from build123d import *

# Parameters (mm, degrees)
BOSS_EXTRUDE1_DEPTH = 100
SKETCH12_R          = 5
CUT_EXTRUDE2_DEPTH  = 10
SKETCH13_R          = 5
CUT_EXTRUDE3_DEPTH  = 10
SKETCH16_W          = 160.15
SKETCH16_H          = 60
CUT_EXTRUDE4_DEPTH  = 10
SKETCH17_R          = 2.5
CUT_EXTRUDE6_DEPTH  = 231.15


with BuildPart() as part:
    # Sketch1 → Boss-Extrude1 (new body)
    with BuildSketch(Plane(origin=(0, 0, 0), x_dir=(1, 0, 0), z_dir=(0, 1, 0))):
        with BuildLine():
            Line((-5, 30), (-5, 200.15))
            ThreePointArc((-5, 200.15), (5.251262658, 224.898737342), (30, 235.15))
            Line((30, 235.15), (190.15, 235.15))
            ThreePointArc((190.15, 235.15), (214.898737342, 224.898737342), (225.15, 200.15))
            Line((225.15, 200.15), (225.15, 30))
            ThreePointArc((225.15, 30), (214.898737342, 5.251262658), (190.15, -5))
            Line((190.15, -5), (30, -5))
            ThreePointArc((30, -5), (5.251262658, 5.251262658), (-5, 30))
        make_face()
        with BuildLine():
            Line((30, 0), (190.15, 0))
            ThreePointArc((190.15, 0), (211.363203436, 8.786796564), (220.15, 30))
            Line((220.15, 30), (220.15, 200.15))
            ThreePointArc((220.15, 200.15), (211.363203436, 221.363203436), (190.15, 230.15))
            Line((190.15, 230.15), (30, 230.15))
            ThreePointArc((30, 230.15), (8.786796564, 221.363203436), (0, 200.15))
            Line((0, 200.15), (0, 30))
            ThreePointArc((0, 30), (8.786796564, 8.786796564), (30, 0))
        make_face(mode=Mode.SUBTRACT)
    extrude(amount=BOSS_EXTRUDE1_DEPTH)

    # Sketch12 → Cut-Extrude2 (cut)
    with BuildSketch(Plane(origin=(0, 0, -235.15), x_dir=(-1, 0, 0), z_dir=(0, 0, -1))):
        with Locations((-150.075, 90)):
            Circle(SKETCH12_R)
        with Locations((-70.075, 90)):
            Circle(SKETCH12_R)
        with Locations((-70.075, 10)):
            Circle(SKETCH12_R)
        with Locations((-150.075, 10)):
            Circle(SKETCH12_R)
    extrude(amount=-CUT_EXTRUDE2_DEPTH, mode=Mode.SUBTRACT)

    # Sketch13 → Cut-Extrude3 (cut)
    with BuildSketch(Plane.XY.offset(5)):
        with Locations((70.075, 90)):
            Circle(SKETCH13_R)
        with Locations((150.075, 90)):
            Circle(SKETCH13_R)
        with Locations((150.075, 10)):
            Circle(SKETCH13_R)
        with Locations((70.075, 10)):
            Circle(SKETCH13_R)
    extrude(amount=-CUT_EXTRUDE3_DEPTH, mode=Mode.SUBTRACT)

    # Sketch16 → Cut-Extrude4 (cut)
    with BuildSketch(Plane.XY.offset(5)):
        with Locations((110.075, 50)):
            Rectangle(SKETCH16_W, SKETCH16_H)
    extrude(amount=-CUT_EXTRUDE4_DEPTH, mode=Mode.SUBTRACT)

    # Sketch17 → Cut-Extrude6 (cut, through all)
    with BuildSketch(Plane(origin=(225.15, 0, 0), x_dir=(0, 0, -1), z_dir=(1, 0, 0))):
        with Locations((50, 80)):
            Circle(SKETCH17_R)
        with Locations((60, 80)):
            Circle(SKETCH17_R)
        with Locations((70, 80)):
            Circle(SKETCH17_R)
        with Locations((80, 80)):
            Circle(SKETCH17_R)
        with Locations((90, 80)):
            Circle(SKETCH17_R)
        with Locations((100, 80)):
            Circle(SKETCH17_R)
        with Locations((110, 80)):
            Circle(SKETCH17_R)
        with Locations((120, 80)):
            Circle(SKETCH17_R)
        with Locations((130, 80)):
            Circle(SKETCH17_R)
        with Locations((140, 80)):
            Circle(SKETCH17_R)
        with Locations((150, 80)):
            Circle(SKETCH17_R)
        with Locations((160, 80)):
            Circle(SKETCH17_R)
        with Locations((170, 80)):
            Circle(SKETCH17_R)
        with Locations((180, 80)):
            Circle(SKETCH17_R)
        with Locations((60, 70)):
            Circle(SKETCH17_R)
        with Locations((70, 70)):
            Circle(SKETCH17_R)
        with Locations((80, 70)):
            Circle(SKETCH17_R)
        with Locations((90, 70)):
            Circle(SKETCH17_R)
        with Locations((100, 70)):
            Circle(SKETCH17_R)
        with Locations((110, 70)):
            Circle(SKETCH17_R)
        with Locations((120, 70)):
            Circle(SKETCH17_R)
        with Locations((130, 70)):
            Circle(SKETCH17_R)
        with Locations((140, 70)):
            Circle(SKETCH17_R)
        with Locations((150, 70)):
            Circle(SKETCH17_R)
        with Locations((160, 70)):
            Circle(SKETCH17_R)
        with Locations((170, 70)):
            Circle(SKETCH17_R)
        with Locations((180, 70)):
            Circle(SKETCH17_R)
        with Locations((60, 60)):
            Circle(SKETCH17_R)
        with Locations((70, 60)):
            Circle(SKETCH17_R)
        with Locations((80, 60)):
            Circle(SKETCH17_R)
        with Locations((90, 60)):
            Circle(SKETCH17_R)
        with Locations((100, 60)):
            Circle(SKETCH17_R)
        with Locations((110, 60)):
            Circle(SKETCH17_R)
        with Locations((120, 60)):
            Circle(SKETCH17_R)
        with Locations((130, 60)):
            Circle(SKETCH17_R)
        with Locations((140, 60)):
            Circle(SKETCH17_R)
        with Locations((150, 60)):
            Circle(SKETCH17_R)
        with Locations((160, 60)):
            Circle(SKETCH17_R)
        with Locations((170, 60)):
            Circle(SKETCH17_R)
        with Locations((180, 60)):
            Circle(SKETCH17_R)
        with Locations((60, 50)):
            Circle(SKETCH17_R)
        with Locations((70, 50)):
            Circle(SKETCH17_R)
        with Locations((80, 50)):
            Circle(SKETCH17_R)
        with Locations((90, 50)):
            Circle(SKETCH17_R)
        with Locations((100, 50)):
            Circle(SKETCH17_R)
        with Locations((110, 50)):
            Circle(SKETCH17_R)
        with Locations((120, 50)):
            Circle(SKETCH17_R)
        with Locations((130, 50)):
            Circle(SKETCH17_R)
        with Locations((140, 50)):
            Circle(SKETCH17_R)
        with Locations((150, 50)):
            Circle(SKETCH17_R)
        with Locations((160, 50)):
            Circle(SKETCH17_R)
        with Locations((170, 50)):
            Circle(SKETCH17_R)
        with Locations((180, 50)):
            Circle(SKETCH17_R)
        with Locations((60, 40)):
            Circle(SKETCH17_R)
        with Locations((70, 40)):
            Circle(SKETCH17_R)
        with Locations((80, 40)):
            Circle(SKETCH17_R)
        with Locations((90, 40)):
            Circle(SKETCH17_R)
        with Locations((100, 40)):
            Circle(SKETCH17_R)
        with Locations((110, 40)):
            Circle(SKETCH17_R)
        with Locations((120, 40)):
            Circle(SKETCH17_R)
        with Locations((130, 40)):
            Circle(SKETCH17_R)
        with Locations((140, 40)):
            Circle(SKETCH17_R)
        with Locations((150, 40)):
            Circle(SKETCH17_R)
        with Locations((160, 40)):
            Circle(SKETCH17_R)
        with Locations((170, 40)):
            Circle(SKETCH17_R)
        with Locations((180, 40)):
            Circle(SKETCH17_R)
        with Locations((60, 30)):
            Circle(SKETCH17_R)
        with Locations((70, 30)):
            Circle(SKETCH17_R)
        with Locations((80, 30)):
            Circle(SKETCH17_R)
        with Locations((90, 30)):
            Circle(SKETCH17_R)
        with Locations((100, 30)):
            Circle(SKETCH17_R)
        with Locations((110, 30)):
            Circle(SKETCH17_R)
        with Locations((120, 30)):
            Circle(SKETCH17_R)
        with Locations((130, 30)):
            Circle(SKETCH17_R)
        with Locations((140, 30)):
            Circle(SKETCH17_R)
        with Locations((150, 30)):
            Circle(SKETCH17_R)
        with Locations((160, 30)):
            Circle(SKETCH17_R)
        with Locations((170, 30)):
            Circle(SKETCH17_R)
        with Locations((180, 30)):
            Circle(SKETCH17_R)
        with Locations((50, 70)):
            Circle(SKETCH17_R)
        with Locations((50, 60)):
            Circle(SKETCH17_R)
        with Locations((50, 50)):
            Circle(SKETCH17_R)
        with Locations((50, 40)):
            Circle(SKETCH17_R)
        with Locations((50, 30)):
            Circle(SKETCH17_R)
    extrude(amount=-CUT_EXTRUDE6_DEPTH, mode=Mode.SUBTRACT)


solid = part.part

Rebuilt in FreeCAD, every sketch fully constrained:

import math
import FreeCAD as App
import Part
import Sketcher


def add_polygon(sketch, points):
    """Adds a closed chain of lines whose ends are joined by coincident constraints."""
    first, n = sketch.GeometryCount, len(points)
    for a, b in zip(points, points[1:] + points[:1]):
        sketch.addGeometry(Part.LineSegment(App.Vector(*a, 0), App.Vector(*b, 0)), False)
    for i in range(n):
        sketch.addConstraint(Sketcher.Constraint("Coincident", first + i, 2, first + (i + 1) % n, 1))

doc = App.newDocument("Part")
params = doc.addObject("Spreadsheet::Sheet", "Params")
for row, (alias, value) in enumerate([
    ("sketch1_radius", "35 mm"),
    ("sketch1_radius2", "30 mm"),
    ("sketch1_width", "160.15 mm"),
    ("sketch1_height", "170.15 mm"),
    ("pad1_length", "100 mm"),
    ("sketch2_diameter", "10 mm"),
    ("pocket1_length", "10 mm"),
    ("sketch3_diameter", "10 mm"),
    ("pocket2_length", "10 mm"),
    ("sketch4_height", "60 mm"),
    ("sketch4_width", "160.15 mm"),
    ("pocket3_length", "10 mm"),
    ("sketch5_diameter", "5 mm"),
], start=1):
    params.set(f"A{row}", alias)
    params.set(f"B{row}", "=" + value)
    params.setAlias(f"B{row}", alias)

body = doc.addObject("PartDesign::Body", "Body")

# Sketch on XZ plane
sketch1 = doc.addObject("Sketcher::SketchObject", "Sketch")
body.addObject(sketch1)
sketch1.AttachmentSupport = (doc.XZ_Plane, [""])
sketch1.MapMode = "FlatFace"
sketch1.addGeometry([
    Part.LineSegment(App.Vector(-5, -200.15, 0), App.Vector(-5, -30, 0)),  # 0
    Part.ArcOfCircle(Part.Circle(App.Vector(30, -30, 0), App.Vector(0, 0, 1), 35), math.radians(90), math.radians(180)),  # 1
    Part.LineSegment(App.Vector(30, 5, 0), App.Vector(190.15, 5, 0)),  # 2
    Part.ArcOfCircle(Part.Circle(App.Vector(190.15, -30, 0), App.Vector(0, 0, 1), 35), math.radians(0), math.radians(90)),  # 3
    Part.LineSegment(App.Vector(225.15, -30, 0), App.Vector(225.15, -200.15, 0)),  # 4
    Part.ArcOfCircle(Part.Circle(App.Vector(190.15, -200.15, 0), App.Vector(0, 0, 1), 35), math.radians(-90), math.radians(0)),  # 5
    Part.LineSegment(App.Vector(190.15, -235.15, 0), App.Vector(30, -235.15, 0)),  # 6
    Part.ArcOfCircle(Part.Circle(App.Vector(30, -200.15, 0), App.Vector(0, 0, 1), 35), math.radians(180), math.radians(270)),  # 7
    Part.ArcOfCircle(Part.Circle(App.Vector(30, -30, 0), App.Vector(0, 0, 1), 30), math.radians(90), math.radians(180)),  # 8
    Part.LineSegment(App.Vector(0, -30, 0), App.Vector(0, -200.15, 0)),  # 9
    Part.ArcOfCircle(Part.Circle(App.Vector(30, -200.15, 0), App.Vector(0, 0, 1), 30), math.radians(180), math.radians(270)),  # 10
    Part.LineSegment(App.Vector(30, -230.15, 0), App.Vector(190.15, -230.15, 0)),  # 11
    Part.ArcOfCircle(Part.Circle(App.Vector(190.15, -200.15, 0), App.Vector(0, 0, 1), 30), math.radians(-90), math.radians(0)),  # 12
    Part.LineSegment(App.Vector(220.15, -200.15, 0), App.Vector(220.15, -30, 0)),  # 13
    Part.ArcOfCircle(Part.Circle(App.Vector(190.15, -30, 0), App.Vector(0, 0, 1), 30), math.radians(0), math.radians(90)),  # 14
    Part.LineSegment(App.Vector(190.15, 0, 0), App.Vector(30, 0, 0)),  # 15
], False)
sketch1.addConstraint([
    Sketcher.Constraint("Tangent", 0, 2, 1, 2),
    Sketcher.Constraint("Tangent", 1, 1, 2, 1),
    Sketcher.Constraint("Tangent", 2, 2, 3, 2),
    Sketcher.Constraint("Tangent", 3, 1, 4, 1),
    Sketcher.Constraint("Tangent", 4, 2, 5, 2),
    Sketcher.Constraint("Tangent", 5, 1, 6, 1),
    Sketcher.Constraint("Tangent", 6, 2, 7, 2),
    Sketcher.Constraint("Tangent", 7, 1, 0, 1),
    Sketcher.Constraint("Tangent", 8, 2, 9, 1),
    Sketcher.Constraint("Tangent", 9, 2, 10, 1),
    Sketcher.Constraint("Tangent", 10, 2, 11, 1),
    Sketcher.Constraint("Tangent", 11, 2, 12, 1),
    Sketcher.Constraint("Tangent", 12, 2, 13, 1),
    Sketcher.Constraint("Tangent", 13, 2, 14, 1),
    Sketcher.Constraint("Tangent", 14, 2, 15, 1),
    Sketcher.Constraint("Tangent", 15, 2, 8, 1),
    Sketcher.Constraint("Vertical", 0),
    Sketcher.Constraint("Horizontal", 2),
    Sketcher.Constraint("Vertical", 4),
    Sketcher.Constraint("Horizontal", 6),
    Sketcher.Constraint("Vertical", 9),
    Sketcher.Constraint("Horizontal", 11),
    Sketcher.Constraint("Vertical", 13),
    Sketcher.Constraint("Horizontal", 15),
    Sketcher.Constraint("Coincident", 8, 3, 1, 3),
    Sketcher.Constraint("Coincident", 10, 3, 7, 3),
    Sketcher.Constraint("Coincident", 12, 3, 5, 3),
    Sketcher.Constraint("Equal", 1, 3),
    Sketcher.Constraint("Equal", 3, 5),
    Sketcher.Constraint("Equal", 5, 7),
    Sketcher.Constraint("Equal", 12, 14),
    Sketcher.Constraint("PointOnObject", 8, 2, -2),
    Sketcher.Constraint("PointOnObject", 14, 2, -1),
    Sketcher.Constraint("Radius", 1, 35.0),
    Sketcher.Constraint("Radius", 8, 30.0),
    Sketcher.Constraint("DistanceX", 2, 1, 2, 2, 160.15),
    Sketcher.Constraint("DistanceY", 0, 1, 0, 2, 170.15),
])
sketch1.setExpression("Constraints[33]", "Params.sketch1_radius")
sketch1.setExpression("Constraints[34]", "Params.sketch1_radius2")
sketch1.setExpression("Constraints[35]", "Params.sketch1_width")
sketch1.setExpression("Constraints[36]", "Params.sketch1_height")
pad1 = doc.addObject("PartDesign::Pad", "Pad")
body.addObject(pad1)
pad1.Profile = sketch1
pad1.setExpression("Length", "Params.pad1_length")
pad1.Reversed = True

# Sketch on XY plane
sketch2 = doc.addObject("Sketcher::SketchObject", "Sketch001")
body.addObject(sketch2)
sketch2.AttachmentSupport = (doc.XY_Plane, [""])
sketch2.MapMode = "FlatFace"
sketch2.AttachmentOffset = App.Placement(App.Vector(0, 0, -235.15), App.Rotation())
sketch2.addGeometry([
    Part.Circle(App.Vector(150.075, 90, 0), App.Vector(0, 0, 1), 5),
    Part.Circle(App.Vector(70.075, 90, 0), App.Vector(0, 0, 1), 5),
    Part.Circle(App.Vector(70.075, 10, 0), App.Vector(0, 0, 1), 5),
    Part.Circle(App.Vector(150.075, 10, 0), App.Vector(0, 0, 1), 5),
], False)
sketch2.addConstraint([
    Sketcher.Constraint("Equal", 0, 1),
    Sketcher.Constraint("Equal", 1, 2),
    Sketcher.Constraint("Equal", 2, 3),
    Sketcher.Constraint("Horizontal", 0, 3, 1, 3),
    Sketcher.Constraint("Horizontal", 2, 3, 3, 3),
    Sketcher.Constraint("Vertical", 1, 3, 2, 3),
    Sketcher.Constraint("Vertical", 0, 3, 3, 3),
    Sketcher.Constraint("Diameter", 0, 10.0),
    Sketcher.Constraint("DistanceY", -1, 1, 0, 3, 90.0),
    Sketcher.Constraint("DistanceY", -1, 1, 2, 3, 10.0),
    Sketcher.Constraint("DistanceX", 1, 3, 0, 3, 80.0),
    Sketcher.Constraint("DistanceX", -1, 1, 0, 3, 150.075),
])
sketch2.setExpression("Constraints[7]", "Params.sketch2_diameter")
pocket1 = doc.addObject("PartDesign::Pocket", "Pocket")
body.addObject(pocket1)
pocket1.Profile = sketch2
pocket1.setExpression("Length", "Params.pocket1_length")
pocket1.Reversed = True

# Sketch on XY plane
sketch3 = doc.addObject("Sketcher::SketchObject", "Sketch002")
body.addObject(sketch3)
sketch3.AttachmentSupport = (doc.XY_Plane, [""])
sketch3.MapMode = "FlatFace"
sketch3.AttachmentOffset = App.Placement(App.Vector(0, 0, 5), App.Rotation())
sketch3.addGeometry([
    Part.Circle(App.Vector(70.075, 90, 0), App.Vector(0, 0, 1), 5),
    Part.Circle(App.Vector(150.075, 90, 0), App.Vector(0, 0, 1), 5),
    Part.Circle(App.Vector(150.075, 10, 0), App.Vector(0, 0, 1), 5),
    Part.Circle(App.Vector(70.075, 10, 0), App.Vector(0, 0, 1), 5),
], False)
sketch3.addConstraint([
    Sketcher.Constraint("Equal", 0, 1),
    Sketcher.Constraint("Equal", 1, 2),
    Sketcher.Constraint("Equal", 2, 3),
    Sketcher.Constraint("Horizontal", 0, 3, 1, 3),
    Sketcher.Constraint("Horizontal", 2, 3, 3, 3),
    Sketcher.Constraint("Vertical", 1, 3, 2, 3),
    Sketcher.Constraint("Vertical", 0, 3, 3, 3),
    Sketcher.Constraint("Diameter", 0, 10.0),
    Sketcher.Constraint("DistanceY", -1, 1, 0, 3, 90.0),
    Sketcher.Constraint("DistanceY", -1, 1, 2, 3, 10.0),
    Sketcher.Constraint("DistanceX", 0, 3, 1, 3, 80.0),
    Sketcher.Constraint("DistanceX", -1, 1, 0, 3, 70.075),
])
sketch3.setExpression("Constraints[7]", "Params.sketch3_diameter")
pocket2 = doc.addObject("PartDesign::Pocket", "Pocket001")
body.addObject(pocket2)
pocket2.Profile = sketch3
pocket2.setExpression("Length", "Params.pocket2_length")

# Sketch on XY plane
sketch4 = doc.addObject("Sketcher::SketchObject", "Sketch003")
body.addObject(sketch4)
sketch4.AttachmentSupport = (doc.XY_Plane, [""])
sketch4.MapMode = "FlatFace"
sketch4.AttachmentOffset = App.Placement(App.Vector(0, 0, 5), App.Rotation())
add_polygon(sketch4, [(30, 80), (30, 20), (190.15, 20), (190.15, 80)])  # lines 0-3
sketch4.addConstraint([
    Sketcher.Constraint("Vertical", 0),
    Sketcher.Constraint("Horizontal", 1),
    Sketcher.Constraint("Vertical", 2),
    Sketcher.Constraint("Horizontal", 3),
    Sketcher.Constraint("DistanceY", 0, 2, 0, 1, 60.0),
    Sketcher.Constraint("DistanceX", -1, 1, 0, 2, 30.0),
    Sketcher.Constraint("DistanceY", -1, 1, 0, 2, 20.0),
    Sketcher.Constraint("DistanceX", 1, 1, 1, 2, 160.15),
])
sketch4.setExpression("Constraints[8]", "Params.sketch4_height")
sketch4.setExpression("Constraints[11]", "Params.sketch4_width")
pocket3 = doc.addObject("PartDesign::Pocket", "Pocket002")
body.addObject(pocket3)
pocket3.Profile = sketch4
pocket3.setExpression("Length", "Params.pocket3_length")

# Sketch on YZ plane
sketch5 = doc.addObject("Sketcher::SketchObject", "Sketch004")
body.addObject(sketch5)
sketch5.AttachmentSupport = (doc.YZ_Plane, [""])
sketch5.MapMode = "FlatFace"
sketch5.AttachmentOffset = App.Placement(App.Vector(0, 0, 225.15), App.Rotation())
sketch5.addGeometry([
    Part.Circle(App.Vector(80, -50, 0), App.Vector(0, 0, 1), 2.5),  # 0
    Part.Circle(App.Vector(80, -60, 0), App.Vector(0, 0, 1), 2.5),  # 1
    Part.Circle(App.Vector(80, -70, 0), App.Vector(0, 0, 1), 2.5),  # 2
    Part.Circle(App.Vector(80, -80, 0), App.Vector(0, 0, 1), 2.5),  # 3
    Part.Circle(App.Vector(80, -90, 0), App.Vector(0, 0, 1), 2.5),  # 4
    Part.Circle(App.Vector(80, -100, 0), App.Vector(0, 0, 1), 2.5),  # 5
    Part.Circle(App.Vector(80, -110, 0), App.Vector(0, 0, 1), 2.5),  # 6
    Part.Circle(App.Vector(80, -120, 0), App.Vector(0, 0, 1), 2.5),  # 7
    Part.Circle(App.Vector(80, -130, 0), App.Vector(0, 0, 1), 2.5),  # 8
    Part.Circle(App.Vector(80, -140, 0), App.Vector(0, 0, 1), 2.5),  # 9
    Part.Circle(App.Vector(80, -150, 0), App.Vector(0, 0, 1), 2.5),  # 10
    Part.Circle(App.Vector(80, -160, 0), App.Vector(0, 0, 1), 2.5),  # 11
    Part.Circle(App.Vector(80, -170, 0), App.Vector(0, 0, 1), 2.5),  # 12
    Part.Circle(App.Vector(80, -180, 0), App.Vector(0, 0, 1), 2.5),  # 13
    Part.Circle(App.Vector(70, -60, 0), App.Vector(0, 0, 1), 2.5),  # 14
    Part.Circle(App.Vector(70, -70, 0), App.Vector(0, 0, 1), 2.5),  # 15
    Part.Circle(App.Vector(70, -80, 0), App.Vector(0, 0, 1), 2.5),  # 16
    Part.Circle(App.Vector(70, -90, 0), App.Vector(0, 0, 1), 2.5),  # 17
    Part.Circle(App.Vector(70, -100, 0), App.Vector(0, 0, 1), 2.5),  # 18
    Part.Circle(App.Vector(70, -110, 0), App.Vector(0, 0, 1), 2.5),  # 19
    Part.Circle(App.Vector(70, -120, 0), App.Vector(0, 0, 1), 2.5),  # 20
    Part.Circle(App.Vector(70, -130, 0), App.Vector(0, 0, 1), 2.5),  # 21
    Part.Circle(App.Vector(70, -140, 0), App.Vector(0, 0, 1), 2.5),  # 22
    Part.Circle(App.Vector(70, -150, 0), App.Vector(0, 0, 1), 2.5),  # 23
    Part.Circle(App.Vector(70, -160, 0), App.Vector(0, 0, 1), 2.5),  # 24
    Part.Circle(App.Vector(70, -170, 0), App.Vector(0, 0, 1), 2.5),  # 25
    Part.Circle(App.Vector(70, -180, 0), App.Vector(0, 0, 1), 2.5),  # 26
    Part.Circle(App.Vector(60, -60, 0), App.Vector(0, 0, 1), 2.5),  # 27
    Part.Circle(App.Vector(60, -70, 0), App.Vector(0, 0, 1), 2.5),  # 28
    Part.Circle(App.Vector(60, -80, 0), App.Vector(0, 0, 1), 2.5),  # 29
    Part.Circle(App.Vector(60, -90, 0), App.Vector(0, 0, 1), 2.5),  # 30
    Part.Circle(App.Vector(60, -100, 0), App.Vector(0, 0, 1), 2.5),  # 31
    Part.Circle(App.Vector(60, -110, 0), App.Vector(0, 0, 1), 2.5),  # 32
    Part.Circle(App.Vector(60, -120, 0), App.Vector(0, 0, 1), 2.5),  # 33
    Part.Circle(App.Vector(60, -130, 0), App.Vector(0, 0, 1), 2.5),  # 34
    Part.Circle(App.Vector(60, -140, 0), App.Vector(0, 0, 1), 2.5),  # 35
    Part.Circle(App.Vector(60, -150, 0), App.Vector(0, 0, 1), 2.5),  # 36
    Part.Circle(App.Vector(60, -160, 0), App.Vector(0, 0, 1), 2.5),  # 37
    Part.Circle(App.Vector(60, -170, 0), App.Vector(0, 0, 1), 2.5),  # 38
    Part.Circle(App.Vector(60, -180, 0), App.Vector(0, 0, 1), 2.5),  # 39
    Part.Circle(App.Vector(50, -60, 0), App.Vector(0, 0, 1), 2.5),  # 40
    Part.Circle(App.Vector(50, -70, 0), App.Vector(0, 0, 1), 2.5),  # 41
    Part.Circle(App.Vector(50, -80, 0), App.Vector(0, 0, 1), 2.5),  # 42
    Part.Circle(App.Vector(50, -90, 0), App.Vector(0, 0, 1), 2.5),  # 43
    Part.Circle(App.Vector(50, -100, 0), App.Vector(0, 0, 1), 2.5),  # 44
    Part.Circle(App.Vector(50, -110, 0), App.Vector(0, 0, 1), 2.5),  # 45
    Part.Circle(App.Vector(50, -120, 0), App.Vector(0, 0, 1), 2.5),  # 46
    Part.Circle(App.Vector(50, -130, 0), App.Vector(0, 0, 1), 2.5),  # 47
    Part.Circle(App.Vector(50, -140, 0), App.Vector(0, 0, 1), 2.5),  # 48
    Part.Circle(App.Vector(50, -150, 0), App.Vector(0, 0, 1), 2.5),  # 49
    Part.Circle(App.Vector(50, -160, 0), App.Vector(0, 0, 1), 2.5),  # 50
    Part.Circle(App.Vector(50, -170, 0), App.Vector(0, 0, 1), 2.5),  # 51
    Part.Circle(App.Vector(50, -180, 0), App.Vector(0, 0, 1), 2.5),  # 52
    Part.Circle(App.Vector(40, -60, 0), App.Vector(0, 0, 1), 2.5),  # 53
    Part.Circle(App.Vector(40, -70, 0), App.Vector(0, 0, 1), 2.5),  # 54
    Part.Circle(App.Vector(40, -80, 0), App.Vector(0, 0, 1), 2.5),  # 55
    Part.Circle(App.Vector(40, -90, 0), App.Vector(0, 0, 1), 2.5),  # 56
    Part.Circle(App.Vector(40, -100, 0), App.Vector(0, 0, 1), 2.5),  # 57
    Part.Circle(App.Vector(40, -110, 0), App.Vector(0, 0, 1), 2.5),  # 58
    Part.Circle(App.Vector(40, -120, 0), App.Vector(0, 0, 1), 2.5),  # 59
    Part.Circle(App.Vector(40, -130, 0), App.Vector(0, 0, 1), 2.5),  # 60
    Part.Circle(App.Vector(40, -140, 0), App.Vector(0, 0, 1), 2.5),  # 61
    Part.Circle(App.Vector(40, -150, 0), App.Vector(0, 0, 1), 2.5),  # 62
    Part.Circle(App.Vector(40, -160, 0), App.Vector(0, 0, 1), 2.5),  # 63
    Part.Circle(App.Vector(40, -170, 0), App.Vector(0, 0, 1), 2.5),  # 64
    Part.Circle(App.Vector(40, -180, 0), App.Vector(0, 0, 1), 2.5),  # 65
    Part.Circle(App.Vector(30, -60, 0), App.Vector(0, 0, 1), 2.5),  # 66
    Part.Circle(App.Vector(30, -70, 0), App.Vector(0, 0, 1), 2.5),  # 67
    Part.Circle(App.Vector(30, -80, 0), App.Vector(0, 0, 1), 2.5),  # 68
    Part.Circle(App.Vector(30, -90, 0), App.Vector(0, 0, 1), 2.5),  # 69
    Part.Circle(App.Vector(30, -100, 0), App.Vector(0, 0, 1), 2.5),  # 70
    Part.Circle(App.Vector(30, -110, 0), App.Vector(0, 0, 1), 2.5),  # 71
    Part.Circle(App.Vector(30, -120, 0), App.Vector(0, 0, 1), 2.5),  # 72
    Part.Circle(App.Vector(30, -130, 0), App.Vector(0, 0, 1), 2.5),  # 73
    Part.Circle(App.Vector(30, -140, 0), App.Vector(0, 0, 1), 2.5),  # 74
    Part.Circle(App.Vector(30, -150, 0), App.Vector(0, 0, 1), 2.5),  # 75
    Part.Circle(App.Vector(30, -160, 0), App.Vector(0, 0, 1), 2.5),  # 76
    Part.Circle(App.Vector(30, -170, 0), App.Vector(0, 0, 1), 2.5),  # 77
    Part.Circle(App.Vector(30, -180, 0), App.Vector(0, 0, 1), 2.5),  # 78
    Part.Circle(App.Vector(70, -50, 0), App.Vector(0, 0, 1), 2.5),  # 79
    Part.Circle(App.Vector(60, -50, 0), App.Vector(0, 0, 1), 2.5),  # 80
    Part.Circle(App.Vector(50, -50, 0), App.Vector(0, 0, 1), 2.5),  # 81
    Part.Circle(App.Vector(40, -50, 0), App.Vector(0, 0, 1), 2.5),  # 82
    Part.Circle(App.Vector(30, -50, 0), App.Vector(0, 0, 1), 2.5),  # 83
], False)
sketch5.addConstraint([
    Sketcher.Constraint("Equal", 0, 1),
    Sketcher.Constraint("Equal", 1, 2),
    Sketcher.Constraint("Equal", 2, 3),
    Sketcher.Constraint("Equal", 3, 4),
    Sketcher.Constraint("Equal", 4, 5),
    Sketcher.Constraint("Equal", 5, 6),
    Sketcher.Constraint("Equal", 6, 7),
    Sketcher.Constraint("Equal", 7, 8),
    Sketcher.Constraint("Equal", 8, 9),
    Sketcher.Constraint("Equal", 9, 10),
    Sketcher.Constraint("Equal", 10, 11),
    Sketcher.Constraint("Equal", 11, 12),
    Sketcher.Constraint("Equal", 12, 13),
    Sketcher.Constraint("Equal", 13, 14),
    Sketcher.Constraint("Equal", 14, 15),
    Sketcher.Constraint("Equal", 15, 16),
    Sketcher.Constraint("Equal", 16, 17),
    Sketcher.Constraint("Equal", 17, 18),
    Sketcher.Constraint("Equal", 18, 19),
    Sketcher.Constraint("Equal", 19, 20),
    Sketcher.Constraint("Equal", 20, 21),
    Sketcher.Constraint("Equal", 21, 22),
    Sketcher.Constraint("Equal", 22, 23),
    Sketcher.Constraint("Equal", 23, 24),
    Sketcher.Constraint("Equal", 24, 25),
    Sketcher.Constraint("Equal", 25, 26),
    Sketcher.Constraint("Equal", 26, 27),
    Sketcher.Constraint("Equal", 27, 28),
    Sketcher.Constraint("Equal", 28, 29),
    Sketcher.Constraint("Equal", 29, 30),
    Sketcher.Constraint("Equal", 30, 31),
    Sketcher.Constraint("Equal", 31, 32),
    Sketcher.Constraint("Equal", 32, 33),
    Sketcher.Constraint("Equal", 33, 34),
    Sketcher.Constraint("Equal", 34, 35),
    Sketcher.Constraint("Equal", 35, 36),
    Sketcher.Constraint("Equal", 36, 37),
    Sketcher.Constraint("Equal", 37, 38),
    Sketcher.Constraint("Equal", 38, 39),
    Sketcher.Constraint("Equal", 39, 40),
    Sketcher.Constraint("Equal", 40, 41),
    Sketcher.Constraint("Equal", 41, 42),
    Sketcher.Constraint("Equal", 42, 43),
    Sketcher.Constraint("Equal", 43, 44),
    Sketcher.Constraint("Equal", 44, 45),
    Sketcher.Constraint("Equal", 45, 46),
    Sketcher.Constraint("Equal", 46, 47),
    Sketcher.Constraint("Equal", 47, 48),
    Sketcher.Constraint("Equal", 48, 49),
    Sketcher.Constraint("Equal", 49, 50),
    Sketcher.Constraint("Equal", 50, 51),
    Sketcher.Constraint("Equal", 51, 52),
    Sketcher.Constraint("Equal", 52, 53),
    Sketcher.Constraint("Equal", 53, 54),
    Sketcher.Constraint("Equal", 54, 55),
    Sketcher.Constraint("Equal", 55, 56),
    Sketcher.Constraint("Equal", 56, 57),
    Sketcher.Constraint("Equal", 57, 58),
    Sketcher.Constraint("Equal", 58, 59),
    Sketcher.Constraint("Equal", 59, 60),
    Sketcher.Constraint("Equal", 60, 61),
    Sketcher.Constraint("Equal", 61, 62),
    Sketcher.Constraint("Equal", 62, 63),
    Sketcher.Constraint("Equal", 63, 64),
    Sketcher.Constraint("Equal", 64, 65),
    Sketcher.Constraint("Equal", 65, 66),
    Sketcher.Constraint("Equal", 66, 67),
    Sketcher.Constraint("Equal", 67, 68),
    Sketcher.Constraint("Equal", 68, 69),
    Sketcher.Constraint("Equal", 69, 70),
    Sketcher.Constraint("Equal", 70, 71),
    Sketcher.Constraint("Equal", 71, 72),
    Sketcher.Constraint("Equal", 72, 73),
    Sketcher.Constraint("Equal", 73, 74),
    Sketcher.Constraint("Equal", 74, 75),
    Sketcher.Constraint("Equal", 75, 76),
    Sketcher.Constraint("Equal", 76, 77),
    Sketcher.Constraint("Equal", 77, 78),
    Sketcher.Constraint("Equal", 78, 79),
    Sketcher.Constraint("Equal", 79, 80),
    Sketcher.Constraint("Equal", 80, 81),
    Sketcher.Constraint("Equal", 81, 82),
    Sketcher.Constraint("Equal", 82, 83),
    Sketcher.Constraint("Horizontal", 1, 3, 14, 3),
    Sketcher.Constraint("Horizontal", 2, 3, 15, 3),
    Sketcher.Constraint("Horizontal", 3, 3, 16, 3),
    Sketcher.Constraint("Horizontal", 4, 3, 17, 3),
    Sketcher.Constraint("Horizontal", 5, 3, 18, 3),
    Sketcher.Constraint("Horizontal", 6, 3, 19, 3),
    Sketcher.Constraint("Horizontal", 7, 3, 20, 3),
    Sketcher.Constraint("Horizontal", 8, 3, 21, 3),
    Sketcher.Constraint("Horizontal", 9, 3, 22, 3),
    Sketcher.Constraint("Horizontal", 10, 3, 23, 3),
    Sketcher.Constraint("Horizontal", 11, 3, 24, 3),
    Sketcher.Constraint("Horizontal", 12, 3, 25, 3),
    Sketcher.Constraint("Horizontal", 13, 3, 26, 3),
    Sketcher.Constraint("Horizontal", 14, 3, 27, 3),
    Sketcher.Constraint("Horizontal", 15, 3, 28, 3),
    Sketcher.Constraint("Horizontal", 16, 3, 29, 3),
    Sketcher.Constraint("Horizontal", 17, 3, 30, 3),
    Sketcher.Constraint("Horizontal", 18, 3, 31, 3),
    Sketcher.Constraint("Horizontal", 19, 3, 32, 3),
    Sketcher.Constraint("Horizontal", 20, 3, 33, 3),
    Sketcher.Constraint("Horizontal", 21, 3, 34, 3),
    Sketcher.Constraint("Horizontal", 22, 3, 35, 3),
    Sketcher.Constraint("Horizontal", 23, 3, 36, 3),
    Sketcher.Constraint("Horizontal", 24, 3, 37, 3),
    Sketcher.Constraint("Horizontal", 25, 3, 38, 3),
    Sketcher.Constraint("Horizontal", 26, 3, 39, 3),
    Sketcher.Constraint("Horizontal", 27, 3, 40, 3),
    Sketcher.Constraint("Horizontal", 28, 3, 41, 3),
    Sketcher.Constraint("Horizontal", 29, 3, 42, 3),
    Sketcher.Constraint("Horizontal", 30, 3, 43, 3),
    Sketcher.Constraint("Horizontal", 31, 3, 44, 3),
    Sketcher.Constraint("Horizontal", 32, 3, 45, 3),
    Sketcher.Constraint("Horizontal", 33, 3, 46, 3),
    Sketcher.Constraint("Horizontal", 34, 3, 47, 3),
    Sketcher.Constraint("Horizontal", 35, 3, 48, 3),
    Sketcher.Constraint("Horizontal", 36, 3, 49, 3),
    Sketcher.Constraint("Horizontal", 37, 3, 50, 3),
    Sketcher.Constraint("Horizontal", 38, 3, 51, 3),
    Sketcher.Constraint("Horizontal", 39, 3, 52, 3),
    Sketcher.Constraint("Horizontal", 40, 3, 53, 3),
    Sketcher.Constraint("Horizontal", 41, 3, 54, 3),
    Sketcher.Constraint("Horizontal", 42, 3, 55, 3),
    Sketcher.Constraint("Horizontal", 43, 3, 56, 3),
    Sketcher.Constraint("Horizontal", 44, 3, 57, 3),
    Sketcher.Constraint("Horizontal", 45, 3, 58, 3),
    Sketcher.Constraint("Horizontal", 46, 3, 59, 3),
    Sketcher.Constraint("Horizontal", 47, 3, 60, 3),
    Sketcher.Constraint("Horizontal", 48, 3, 61, 3),
    Sketcher.Constraint("Horizontal", 49, 3, 62, 3),
    Sketcher.Constraint("Horizontal", 50, 3, 63, 3),
    Sketcher.Constraint("Horizontal", 51, 3, 64, 3),
    Sketcher.Constraint("Horizontal", 52, 3, 65, 3),
    Sketcher.Constraint("Horizontal", 53, 3, 66, 3),
    Sketcher.Constraint("Horizontal", 54, 3, 67, 3),
    Sketcher.Constraint("Horizontal", 55, 3, 68, 3),
    Sketcher.Constraint("Horizontal", 56, 3, 69, 3),
    Sketcher.Constraint("Horizontal", 57, 3, 70, 3),
    Sketcher.Constraint("Horizontal", 58, 3, 71, 3),
    Sketcher.Constraint("Horizontal", 59, 3, 72, 3),
    Sketcher.Constraint("Horizontal", 60, 3, 73, 3),
    Sketcher.Constraint("Horizontal", 61, 3, 74, 3),
    Sketcher.Constraint("Horizontal", 62, 3, 75, 3),
    Sketcher.Constraint("Horizontal", 63, 3, 76, 3),
    Sketcher.Constraint("Horizontal", 64, 3, 77, 3),
    Sketcher.Constraint("Horizontal", 65, 3, 78, 3),
    Sketcher.Constraint("Horizontal", 0, 3, 79, 3),
    Sketcher.Constraint("Horizontal", 79, 3, 80, 3),
    Sketcher.Constraint("Horizontal", 80, 3, 81, 3),
    Sketcher.Constraint("Horizontal", 81, 3, 82, 3),
    Sketcher.Constraint("Horizontal", 82, 3, 83, 3),
    Sketcher.Constraint("Vertical", 0, 3, 1, 3),
    Sketcher.Constraint("Vertical", 1, 3, 2, 3),
    Sketcher.Constraint("Vertical", 2, 3, 3, 3),
    Sketcher.Constraint("Vertical", 3, 3, 4, 3),
    Sketcher.Constraint("Vertical", 4, 3, 5, 3),
    Sketcher.Constraint("Vertical", 5, 3, 6, 3),
    Sketcher.Constraint("Vertical", 6, 3, 7, 3),
    Sketcher.Constraint("Vertical", 7, 3, 8, 3),
    Sketcher.Constraint("Vertical", 8, 3, 9, 3),
    Sketcher.Constraint("Vertical", 9, 3, 10, 3),
    Sketcher.Constraint("Vertical", 10, 3, 11, 3),
    Sketcher.Constraint("Vertical", 11, 3, 12, 3),
    Sketcher.Constraint("Vertical", 12, 3, 13, 3),
    Sketcher.Constraint("Vertical", 14, 3, 15, 3),
    Sketcher.Constraint("Vertical", 15, 3, 16, 3),
    Sketcher.Constraint("Vertical", 16, 3, 17, 3),
    Sketcher.Constraint("Vertical", 17, 3, 18, 3),
    Sketcher.Constraint("Vertical", 18, 3, 19, 3),
    Sketcher.Constraint("Vertical", 19, 3, 20, 3),
    Sketcher.Constraint("Vertical", 20, 3, 21, 3),
    Sketcher.Constraint("Vertical", 21, 3, 22, 3),
    Sketcher.Constraint("Vertical", 22, 3, 23, 3),
    Sketcher.Constraint("Vertical", 23, 3, 24, 3),
    Sketcher.Constraint("Vertical", 24, 3, 25, 3),
    Sketcher.Constraint("Vertical", 25, 3, 26, 3),
    Sketcher.Constraint("Vertical", 27, 3, 28, 3),
    Sketcher.Constraint("Vertical", 28, 3, 29, 3),
    Sketcher.Constraint("Vertical", 29, 3, 30, 3),
    Sketcher.Constraint("Vertical", 30, 3, 31, 3),
    Sketcher.Constraint("Vertical", 31, 3, 32, 3),
    Sketcher.Constraint("Vertical", 32, 3, 33, 3),
    Sketcher.Constraint("Vertical", 33, 3, 34, 3),
    Sketcher.Constraint("Vertical", 34, 3, 35, 3),
    Sketcher.Constraint("Vertical", 35, 3, 36, 3),
    Sketcher.Constraint("Vertical", 36, 3, 37, 3),
    Sketcher.Constraint("Vertical", 37, 3, 38, 3),
    Sketcher.Constraint("Vertical", 38, 3, 39, 3),
    Sketcher.Constraint("Vertical", 40, 3, 41, 3),
    Sketcher.Constraint("Vertical", 41, 3, 42, 3),
    Sketcher.Constraint("Vertical", 42, 3, 43, 3),
    Sketcher.Constraint("Vertical", 43, 3, 44, 3),
    Sketcher.Constraint("Vertical", 44, 3, 45, 3),
    Sketcher.Constraint("Vertical", 45, 3, 46, 3),
    Sketcher.Constraint("Vertical", 46, 3, 47, 3),
    Sketcher.Constraint("Vertical", 47, 3, 48, 3),
    Sketcher.Constraint("Vertical", 48, 3, 49, 3),
    Sketcher.Constraint("Vertical", 49, 3, 50, 3),
    Sketcher.Constraint("Vertical", 50, 3, 51, 3),
    Sketcher.Constraint("Vertical", 51, 3, 52, 3),
    Sketcher.Constraint("Vertical", 53, 3, 54, 3),
    Sketcher.Constraint("Vertical", 54, 3, 55, 3),
    Sketcher.Constraint("Vertical", 55, 3, 56, 3),
    Sketcher.Constraint("Vertical", 56, 3, 57, 3),
    Sketcher.Constraint("Vertical", 57, 3, 58, 3),
    Sketcher.Constraint("Vertical", 58, 3, 59, 3),
    Sketcher.Constraint("Vertical", 59, 3, 60, 3),
    Sketcher.Constraint("Vertical", 60, 3, 61, 3),
    Sketcher.Constraint("Vertical", 61, 3, 62, 3),
    Sketcher.Constraint("Vertical", 62, 3, 63, 3),
    Sketcher.Constraint("Vertical", 63, 3, 64, 3),
    Sketcher.Constraint("Vertical", 64, 3, 65, 3),
    Sketcher.Constraint("Vertical", 66, 3, 67, 3),
    Sketcher.Constraint("Vertical", 67, 3, 68, 3),
    Sketcher.Constraint("Vertical", 68, 3, 69, 3),
    Sketcher.Constraint("Vertical", 69, 3, 70, 3),
    Sketcher.Constraint("Vertical", 70, 3, 71, 3),
    Sketcher.Constraint("Vertical", 71, 3, 72, 3),
    Sketcher.Constraint("Vertical", 72, 3, 73, 3),
    Sketcher.Constraint("Vertical", 73, 3, 74, 3),
    Sketcher.Constraint("Vertical", 74, 3, 75, 3),
    Sketcher.Constraint("Vertical", 75, 3, 76, 3),
    Sketcher.Constraint("Vertical", 76, 3, 77, 3),
    Sketcher.Constraint("Vertical", 77, 3, 78, 3),
    Sketcher.Constraint("Vertical", 26, 3, 79, 3),
    Sketcher.Constraint("Vertical", 39, 3, 80, 3),
    Sketcher.Constraint("Vertical", 52, 3, 81, 3),
    Sketcher.Constraint("Vertical", 65, 3, 82, 3),
    Sketcher.Constraint("Vertical", 78, 3, 83, 3),
    Sketcher.Constraint("Diameter", 0, 5.0),
    Sketcher.Constraint("DistanceX", -1, 1, 0, 3, 80.0),
    Sketcher.Constraint("DistanceY", 0, 3, -1, 1, 50.0),
    Sketcher.Constraint("DistanceY", 1, 3, -1, 1, 60.0),
    Sketcher.Constraint("DistanceY", 2, 3, -1, 1, 70.0),
    Sketcher.Constraint("DistanceY", 3, 3, -1, 1, 80.0),
    Sketcher.Constraint("DistanceY", 4, 3, -1, 1, 90.0),
    Sketcher.Constraint("DistanceY", 5, 3, -1, 1, 100.0),
    Sketcher.Constraint("DistanceY", 6, 3, -1, 1, 110.0),
    Sketcher.Constraint("DistanceY", 7, 3, -1, 1, 120.0),
    Sketcher.Constraint("DistanceY", 8, 3, -1, 1, 130.0),
    Sketcher.Constraint("DistanceY", 9, 3, -1, 1, 140.0),
    Sketcher.Constraint("DistanceY", 10, 3, -1, 1, 150.0),
    Sketcher.Constraint("DistanceY", 11, 3, -1, 1, 160.0),
    Sketcher.Constraint("DistanceY", 12, 3, -1, 1, 170.0),
    Sketcher.Constraint("DistanceY", 13, 3, -1, 1, 180.0),
    Sketcher.Constraint("DistanceX", -1, 1, 14, 3, 70.0),
    Sketcher.Constraint("DistanceX", -1, 1, 27, 3, 60.0),
    Sketcher.Constraint("DistanceX", -1, 1, 40, 3, 50.0),
    Sketcher.Constraint("DistanceX", -1, 1, 53, 3, 40.0),
    Sketcher.Constraint("DistanceX", -1, 1, 66, 3, 30.0),
])
sketch5.setExpression("Constraints[231]", "Params.sketch5_diameter")
pocket4 = doc.addObject("PartDesign::Pocket", "Pocket003")
body.addObject(pocket4)
pocket4.Profile = sketch5
pocket4.Type = "ThroughAll"

doc.recompute()
